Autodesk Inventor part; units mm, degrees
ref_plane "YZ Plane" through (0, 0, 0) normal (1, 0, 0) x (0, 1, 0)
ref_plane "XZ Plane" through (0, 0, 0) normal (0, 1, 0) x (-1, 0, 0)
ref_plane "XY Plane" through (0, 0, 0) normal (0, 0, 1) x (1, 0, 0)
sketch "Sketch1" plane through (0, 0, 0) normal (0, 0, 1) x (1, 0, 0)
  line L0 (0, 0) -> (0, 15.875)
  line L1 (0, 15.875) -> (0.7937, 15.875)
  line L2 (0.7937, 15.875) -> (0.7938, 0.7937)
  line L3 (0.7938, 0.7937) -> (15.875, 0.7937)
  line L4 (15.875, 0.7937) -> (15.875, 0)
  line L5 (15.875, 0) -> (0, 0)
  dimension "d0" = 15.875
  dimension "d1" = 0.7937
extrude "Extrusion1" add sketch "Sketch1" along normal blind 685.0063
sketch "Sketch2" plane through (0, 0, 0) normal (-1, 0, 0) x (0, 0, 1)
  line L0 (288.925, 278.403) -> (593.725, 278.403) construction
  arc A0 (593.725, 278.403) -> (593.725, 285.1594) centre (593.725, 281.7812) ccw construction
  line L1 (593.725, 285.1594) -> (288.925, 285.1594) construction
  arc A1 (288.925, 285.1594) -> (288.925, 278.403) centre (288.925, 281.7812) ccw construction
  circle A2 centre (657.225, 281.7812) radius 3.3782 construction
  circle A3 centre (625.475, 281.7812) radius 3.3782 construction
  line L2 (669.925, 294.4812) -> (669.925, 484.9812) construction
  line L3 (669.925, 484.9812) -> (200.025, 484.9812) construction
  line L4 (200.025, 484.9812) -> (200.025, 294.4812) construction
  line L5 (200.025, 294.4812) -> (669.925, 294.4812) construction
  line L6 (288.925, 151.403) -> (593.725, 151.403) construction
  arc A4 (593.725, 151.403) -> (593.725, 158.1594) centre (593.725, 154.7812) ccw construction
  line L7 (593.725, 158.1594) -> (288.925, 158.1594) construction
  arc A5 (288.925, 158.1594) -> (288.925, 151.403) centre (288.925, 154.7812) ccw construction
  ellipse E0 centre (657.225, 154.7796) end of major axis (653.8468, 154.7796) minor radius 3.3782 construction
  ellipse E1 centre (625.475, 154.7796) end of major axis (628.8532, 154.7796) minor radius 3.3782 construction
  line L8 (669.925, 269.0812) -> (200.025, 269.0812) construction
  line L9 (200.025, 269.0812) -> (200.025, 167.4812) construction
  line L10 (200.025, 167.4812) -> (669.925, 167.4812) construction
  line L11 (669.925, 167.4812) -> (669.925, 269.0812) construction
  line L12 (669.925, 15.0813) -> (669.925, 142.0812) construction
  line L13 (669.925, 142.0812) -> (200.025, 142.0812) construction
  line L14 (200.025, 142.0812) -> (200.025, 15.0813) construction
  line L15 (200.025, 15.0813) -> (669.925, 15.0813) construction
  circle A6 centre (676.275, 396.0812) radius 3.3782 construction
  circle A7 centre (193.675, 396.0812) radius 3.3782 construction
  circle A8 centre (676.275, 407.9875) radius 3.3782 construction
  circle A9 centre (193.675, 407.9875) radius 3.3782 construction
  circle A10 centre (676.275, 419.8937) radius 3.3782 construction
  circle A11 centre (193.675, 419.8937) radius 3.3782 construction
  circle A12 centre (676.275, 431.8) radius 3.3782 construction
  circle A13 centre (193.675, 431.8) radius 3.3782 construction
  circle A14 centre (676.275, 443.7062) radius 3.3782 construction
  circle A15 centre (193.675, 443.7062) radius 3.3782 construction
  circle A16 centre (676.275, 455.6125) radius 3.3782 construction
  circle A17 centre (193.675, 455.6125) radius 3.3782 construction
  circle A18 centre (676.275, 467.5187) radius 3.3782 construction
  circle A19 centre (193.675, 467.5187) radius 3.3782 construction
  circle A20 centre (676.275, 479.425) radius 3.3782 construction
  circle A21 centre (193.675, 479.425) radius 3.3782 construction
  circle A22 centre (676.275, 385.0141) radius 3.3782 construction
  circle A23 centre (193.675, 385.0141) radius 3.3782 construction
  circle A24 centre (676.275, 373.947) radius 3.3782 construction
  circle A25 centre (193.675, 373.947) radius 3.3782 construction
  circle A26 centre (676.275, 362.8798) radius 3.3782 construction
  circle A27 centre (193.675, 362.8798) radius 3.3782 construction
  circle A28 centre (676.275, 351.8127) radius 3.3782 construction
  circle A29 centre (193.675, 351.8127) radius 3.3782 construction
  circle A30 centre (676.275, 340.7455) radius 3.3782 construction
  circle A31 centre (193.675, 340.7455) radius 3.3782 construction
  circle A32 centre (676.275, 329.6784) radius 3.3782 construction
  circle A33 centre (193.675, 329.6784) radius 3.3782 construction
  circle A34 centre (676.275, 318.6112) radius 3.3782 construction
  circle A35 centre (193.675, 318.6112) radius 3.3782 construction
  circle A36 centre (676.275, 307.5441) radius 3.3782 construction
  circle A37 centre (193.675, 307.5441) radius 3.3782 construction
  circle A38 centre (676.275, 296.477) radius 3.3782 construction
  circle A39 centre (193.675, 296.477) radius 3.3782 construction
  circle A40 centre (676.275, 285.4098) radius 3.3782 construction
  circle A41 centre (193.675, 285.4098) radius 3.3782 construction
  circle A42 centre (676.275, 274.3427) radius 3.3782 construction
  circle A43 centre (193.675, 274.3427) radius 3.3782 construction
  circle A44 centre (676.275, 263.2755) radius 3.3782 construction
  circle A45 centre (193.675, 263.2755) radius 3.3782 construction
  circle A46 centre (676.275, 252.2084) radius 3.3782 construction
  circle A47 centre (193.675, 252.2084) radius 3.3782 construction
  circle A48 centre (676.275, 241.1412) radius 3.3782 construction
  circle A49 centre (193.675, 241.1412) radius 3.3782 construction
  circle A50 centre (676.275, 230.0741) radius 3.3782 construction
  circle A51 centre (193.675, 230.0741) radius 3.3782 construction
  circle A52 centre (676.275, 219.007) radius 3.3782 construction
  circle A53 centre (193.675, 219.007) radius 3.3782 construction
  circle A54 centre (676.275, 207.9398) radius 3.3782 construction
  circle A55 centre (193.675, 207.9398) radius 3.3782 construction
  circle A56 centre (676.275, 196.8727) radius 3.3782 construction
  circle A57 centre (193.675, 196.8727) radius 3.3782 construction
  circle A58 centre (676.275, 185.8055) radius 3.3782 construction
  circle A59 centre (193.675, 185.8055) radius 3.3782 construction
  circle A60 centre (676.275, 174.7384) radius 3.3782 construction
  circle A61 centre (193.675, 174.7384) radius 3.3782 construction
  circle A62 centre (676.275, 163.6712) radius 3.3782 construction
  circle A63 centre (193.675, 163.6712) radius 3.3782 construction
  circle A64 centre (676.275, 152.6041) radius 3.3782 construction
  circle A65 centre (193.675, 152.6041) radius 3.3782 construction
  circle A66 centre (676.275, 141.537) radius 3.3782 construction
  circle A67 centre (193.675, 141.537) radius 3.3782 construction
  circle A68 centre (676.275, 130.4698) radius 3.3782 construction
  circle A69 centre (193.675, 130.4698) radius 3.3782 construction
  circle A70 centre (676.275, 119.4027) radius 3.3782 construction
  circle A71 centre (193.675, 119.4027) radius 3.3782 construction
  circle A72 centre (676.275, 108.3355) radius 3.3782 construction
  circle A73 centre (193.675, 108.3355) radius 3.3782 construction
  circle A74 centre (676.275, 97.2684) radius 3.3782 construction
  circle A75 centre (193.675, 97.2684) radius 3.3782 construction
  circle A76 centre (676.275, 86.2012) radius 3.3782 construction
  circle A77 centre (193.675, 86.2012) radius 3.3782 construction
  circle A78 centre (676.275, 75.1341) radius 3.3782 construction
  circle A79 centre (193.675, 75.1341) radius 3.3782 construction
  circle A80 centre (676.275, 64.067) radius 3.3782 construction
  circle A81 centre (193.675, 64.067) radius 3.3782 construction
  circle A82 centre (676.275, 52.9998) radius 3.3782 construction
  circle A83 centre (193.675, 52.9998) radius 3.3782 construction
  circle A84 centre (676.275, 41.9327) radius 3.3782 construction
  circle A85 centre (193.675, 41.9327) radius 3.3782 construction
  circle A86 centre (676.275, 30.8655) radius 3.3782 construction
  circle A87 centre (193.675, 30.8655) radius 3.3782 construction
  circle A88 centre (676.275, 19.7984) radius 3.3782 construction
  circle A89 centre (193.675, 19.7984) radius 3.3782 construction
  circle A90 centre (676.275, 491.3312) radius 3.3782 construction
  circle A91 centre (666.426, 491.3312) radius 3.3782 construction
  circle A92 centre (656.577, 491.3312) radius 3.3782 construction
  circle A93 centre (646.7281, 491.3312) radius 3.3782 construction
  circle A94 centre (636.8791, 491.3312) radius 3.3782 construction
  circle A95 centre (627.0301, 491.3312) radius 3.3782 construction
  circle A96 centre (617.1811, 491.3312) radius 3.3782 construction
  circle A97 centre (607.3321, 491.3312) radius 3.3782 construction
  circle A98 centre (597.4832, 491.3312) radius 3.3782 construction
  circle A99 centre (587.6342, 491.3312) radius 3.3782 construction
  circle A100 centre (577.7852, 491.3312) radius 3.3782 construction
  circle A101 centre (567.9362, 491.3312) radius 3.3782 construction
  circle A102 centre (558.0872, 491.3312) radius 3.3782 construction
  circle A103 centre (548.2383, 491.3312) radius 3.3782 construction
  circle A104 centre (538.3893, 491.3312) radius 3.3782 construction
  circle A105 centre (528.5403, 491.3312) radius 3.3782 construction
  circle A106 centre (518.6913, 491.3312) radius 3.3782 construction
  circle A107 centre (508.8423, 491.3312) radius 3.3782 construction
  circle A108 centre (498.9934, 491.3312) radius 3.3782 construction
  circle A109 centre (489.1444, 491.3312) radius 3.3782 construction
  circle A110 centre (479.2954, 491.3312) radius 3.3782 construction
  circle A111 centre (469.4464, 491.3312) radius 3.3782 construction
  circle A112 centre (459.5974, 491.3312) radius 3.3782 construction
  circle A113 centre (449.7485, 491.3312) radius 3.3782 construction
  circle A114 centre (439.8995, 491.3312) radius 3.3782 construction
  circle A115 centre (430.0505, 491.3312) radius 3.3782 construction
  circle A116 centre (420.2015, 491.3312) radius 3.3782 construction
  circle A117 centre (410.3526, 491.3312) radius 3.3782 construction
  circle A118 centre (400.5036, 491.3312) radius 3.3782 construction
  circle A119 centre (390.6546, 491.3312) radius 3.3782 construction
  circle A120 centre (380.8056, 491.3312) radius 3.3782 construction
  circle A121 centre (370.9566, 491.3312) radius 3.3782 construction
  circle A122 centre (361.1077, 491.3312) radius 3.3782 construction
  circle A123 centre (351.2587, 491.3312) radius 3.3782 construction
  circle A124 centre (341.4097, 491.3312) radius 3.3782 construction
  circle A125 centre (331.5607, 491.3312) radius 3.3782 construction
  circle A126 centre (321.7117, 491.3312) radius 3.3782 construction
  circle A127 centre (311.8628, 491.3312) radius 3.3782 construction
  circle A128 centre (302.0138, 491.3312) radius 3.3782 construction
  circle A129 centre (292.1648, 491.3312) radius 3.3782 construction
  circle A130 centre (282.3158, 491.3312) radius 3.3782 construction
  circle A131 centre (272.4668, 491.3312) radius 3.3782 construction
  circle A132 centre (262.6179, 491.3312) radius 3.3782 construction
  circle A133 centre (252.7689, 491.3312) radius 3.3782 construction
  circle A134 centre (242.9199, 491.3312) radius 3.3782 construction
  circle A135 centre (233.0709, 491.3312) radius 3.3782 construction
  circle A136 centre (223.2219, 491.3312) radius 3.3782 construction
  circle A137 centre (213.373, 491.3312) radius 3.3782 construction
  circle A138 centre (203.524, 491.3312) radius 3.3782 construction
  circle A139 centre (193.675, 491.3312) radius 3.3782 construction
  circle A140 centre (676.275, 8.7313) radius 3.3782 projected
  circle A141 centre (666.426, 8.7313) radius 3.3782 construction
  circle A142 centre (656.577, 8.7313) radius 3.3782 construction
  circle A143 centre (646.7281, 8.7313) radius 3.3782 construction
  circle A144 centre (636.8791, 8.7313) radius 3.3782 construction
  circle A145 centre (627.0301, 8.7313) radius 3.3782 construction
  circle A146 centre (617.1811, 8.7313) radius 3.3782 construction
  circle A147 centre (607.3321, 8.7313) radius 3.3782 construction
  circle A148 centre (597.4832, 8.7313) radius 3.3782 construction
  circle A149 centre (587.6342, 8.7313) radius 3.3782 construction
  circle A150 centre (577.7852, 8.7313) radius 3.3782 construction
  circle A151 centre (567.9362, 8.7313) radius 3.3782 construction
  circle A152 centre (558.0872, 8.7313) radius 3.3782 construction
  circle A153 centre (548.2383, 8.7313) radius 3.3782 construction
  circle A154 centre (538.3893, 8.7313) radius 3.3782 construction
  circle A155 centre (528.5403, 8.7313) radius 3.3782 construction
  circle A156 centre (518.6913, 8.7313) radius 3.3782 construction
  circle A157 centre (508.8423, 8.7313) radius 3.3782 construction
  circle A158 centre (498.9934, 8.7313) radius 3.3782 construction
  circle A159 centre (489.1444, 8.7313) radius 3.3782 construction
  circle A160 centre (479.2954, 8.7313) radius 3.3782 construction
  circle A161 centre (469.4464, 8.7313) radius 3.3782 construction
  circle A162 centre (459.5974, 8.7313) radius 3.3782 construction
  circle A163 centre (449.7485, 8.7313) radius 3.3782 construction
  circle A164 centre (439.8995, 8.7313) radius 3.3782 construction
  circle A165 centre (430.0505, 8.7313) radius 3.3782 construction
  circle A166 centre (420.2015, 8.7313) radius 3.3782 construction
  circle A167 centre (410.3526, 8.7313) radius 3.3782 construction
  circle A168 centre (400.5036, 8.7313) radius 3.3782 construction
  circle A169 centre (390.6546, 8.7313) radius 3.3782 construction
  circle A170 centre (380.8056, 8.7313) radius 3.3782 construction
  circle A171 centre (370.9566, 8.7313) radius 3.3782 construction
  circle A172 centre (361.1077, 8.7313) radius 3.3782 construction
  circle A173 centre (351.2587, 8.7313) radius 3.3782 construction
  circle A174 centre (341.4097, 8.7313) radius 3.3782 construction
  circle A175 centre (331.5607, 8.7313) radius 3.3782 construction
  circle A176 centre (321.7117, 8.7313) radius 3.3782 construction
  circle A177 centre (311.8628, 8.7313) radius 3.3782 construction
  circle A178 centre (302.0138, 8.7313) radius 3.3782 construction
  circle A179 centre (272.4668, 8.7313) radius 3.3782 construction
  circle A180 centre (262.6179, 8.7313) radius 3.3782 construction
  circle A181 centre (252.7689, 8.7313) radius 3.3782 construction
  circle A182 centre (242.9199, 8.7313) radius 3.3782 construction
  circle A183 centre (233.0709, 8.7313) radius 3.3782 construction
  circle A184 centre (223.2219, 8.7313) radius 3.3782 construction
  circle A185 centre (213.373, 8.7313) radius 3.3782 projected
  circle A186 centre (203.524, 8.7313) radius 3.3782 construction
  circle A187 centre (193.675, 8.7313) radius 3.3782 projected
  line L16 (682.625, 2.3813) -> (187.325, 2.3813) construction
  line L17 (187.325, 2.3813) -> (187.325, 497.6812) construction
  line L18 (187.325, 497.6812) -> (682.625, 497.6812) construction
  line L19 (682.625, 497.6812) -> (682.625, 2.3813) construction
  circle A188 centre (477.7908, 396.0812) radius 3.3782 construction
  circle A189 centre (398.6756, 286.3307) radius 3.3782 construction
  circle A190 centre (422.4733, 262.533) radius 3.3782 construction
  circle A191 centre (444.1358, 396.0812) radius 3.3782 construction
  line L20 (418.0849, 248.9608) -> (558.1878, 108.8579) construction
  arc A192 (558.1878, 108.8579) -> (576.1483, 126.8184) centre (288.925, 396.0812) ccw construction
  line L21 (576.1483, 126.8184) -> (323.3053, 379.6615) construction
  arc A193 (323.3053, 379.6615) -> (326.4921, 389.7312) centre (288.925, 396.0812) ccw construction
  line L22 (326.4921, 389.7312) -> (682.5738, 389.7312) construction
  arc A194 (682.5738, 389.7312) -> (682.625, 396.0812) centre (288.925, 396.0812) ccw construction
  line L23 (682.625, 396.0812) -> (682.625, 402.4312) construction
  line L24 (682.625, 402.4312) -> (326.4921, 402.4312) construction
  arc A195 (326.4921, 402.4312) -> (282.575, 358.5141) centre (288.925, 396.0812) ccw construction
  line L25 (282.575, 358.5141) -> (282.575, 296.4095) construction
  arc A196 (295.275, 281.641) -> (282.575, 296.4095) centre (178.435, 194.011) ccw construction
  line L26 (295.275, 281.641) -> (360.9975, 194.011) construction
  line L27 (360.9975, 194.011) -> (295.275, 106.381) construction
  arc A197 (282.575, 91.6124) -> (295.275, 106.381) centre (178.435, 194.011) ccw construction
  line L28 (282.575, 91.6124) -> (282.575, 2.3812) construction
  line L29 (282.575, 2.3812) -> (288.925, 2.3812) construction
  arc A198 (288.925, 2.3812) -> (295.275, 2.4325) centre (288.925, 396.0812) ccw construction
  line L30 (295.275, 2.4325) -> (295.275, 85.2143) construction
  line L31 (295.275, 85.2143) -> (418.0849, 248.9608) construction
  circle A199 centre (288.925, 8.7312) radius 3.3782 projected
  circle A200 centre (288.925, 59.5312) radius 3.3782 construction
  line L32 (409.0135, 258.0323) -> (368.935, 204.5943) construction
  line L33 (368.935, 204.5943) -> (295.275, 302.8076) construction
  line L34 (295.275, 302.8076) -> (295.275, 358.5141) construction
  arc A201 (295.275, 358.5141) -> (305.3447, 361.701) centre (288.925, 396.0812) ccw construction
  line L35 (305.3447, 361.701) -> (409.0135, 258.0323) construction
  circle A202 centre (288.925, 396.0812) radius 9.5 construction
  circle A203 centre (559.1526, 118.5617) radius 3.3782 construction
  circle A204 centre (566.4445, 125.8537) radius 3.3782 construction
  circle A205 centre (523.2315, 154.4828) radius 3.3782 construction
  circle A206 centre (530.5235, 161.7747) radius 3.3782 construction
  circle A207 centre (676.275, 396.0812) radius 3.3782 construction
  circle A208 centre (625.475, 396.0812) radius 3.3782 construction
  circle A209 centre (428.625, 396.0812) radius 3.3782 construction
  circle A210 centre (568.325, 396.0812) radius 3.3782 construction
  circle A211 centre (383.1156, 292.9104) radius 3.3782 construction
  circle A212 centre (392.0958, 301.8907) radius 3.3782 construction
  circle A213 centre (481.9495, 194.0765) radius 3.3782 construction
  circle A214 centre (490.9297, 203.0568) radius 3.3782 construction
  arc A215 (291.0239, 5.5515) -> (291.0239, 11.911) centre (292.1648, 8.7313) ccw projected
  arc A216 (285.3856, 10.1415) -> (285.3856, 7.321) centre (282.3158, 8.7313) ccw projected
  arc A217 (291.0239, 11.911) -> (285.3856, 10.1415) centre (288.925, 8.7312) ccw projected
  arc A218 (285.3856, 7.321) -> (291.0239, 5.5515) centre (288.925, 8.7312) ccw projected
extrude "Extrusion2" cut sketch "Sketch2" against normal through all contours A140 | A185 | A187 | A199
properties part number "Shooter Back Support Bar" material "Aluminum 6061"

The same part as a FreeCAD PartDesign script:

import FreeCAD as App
import Part
import Sketcher
Q = App.Units.Quantity

doc = App.newDocument("Part")
body = doc.addObject("PartDesign::Body", "Body")

sketch1 = doc.addObject("Sketcher::SketchObject", "Sketch")
body.addObject(sketch1)
sketch1.AttachmentSupport = (doc.XY_Plane, [""])
sketch1.MapMode = "FlatFace"
sketch1.addGeometry([
    Part.LineSegment(App.Vector(0, 15.9, 0), App.Vector(0, 0, 0)),
    Part.LineSegment(App.Vector(0, 0, 0), App.Vector(15.9, 0, 0)),
    Part.LineSegment(App.Vector(15.9, 0, 0), App.Vector(15.9, 0.8, 0)),
    Part.LineSegment(App.Vector(15.9, 0.8, 0), App.Vector(0.8, 0.8, 0)),
    Part.LineSegment(App.Vector(0.8, 0.8, 0), App.Vector(0.8, 15.9, 0)),
    Part.LineSegment(App.Vector(0.8, 15.9, 0), App.Vector(0, 15.9, 0)),
], False)
sketch1.addConstraint([
    Sketcher.Constraint("Coincident", 0, 2, 1, 1),
    Sketcher.Constraint("Coincident", 1, 2, 2, 1),
    Sketcher.Constraint("Coincident", 2, 2, 3, 1),
    Sketcher.Constraint("Coincident", 3, 2, 4, 1),
    Sketcher.Constraint("Coincident", 4, 2, 5, 1),
    Sketcher.Constraint("Coincident", 5, 2, 0, 1),
    Sketcher.Constraint("Vertical", 0),
    Sketcher.Constraint("Horizontal", 1),
    Sketcher.Constraint("Vertical", 2),
    Sketcher.Constraint("Horizontal", 3),
    Sketcher.Constraint("Vertical", 4),
    Sketcher.Constraint("Horizontal", 5),
    Sketcher.Constraint("Coincident", 0, 2, -1, 1),
    Sketcher.Constraint("Equal", 1, 0),
    Sketcher.Constraint("Equal", 5, 2),
    Sketcher.Constraint("DistanceX", 1, 1, 1, 2, Q("0.625 in")),
    Sketcher.Constraint("DistanceX", 5, 2, 5, 1, Q("0.031248 in")),
])
pad1 = doc.addObject("PartDesign::Pad", "Pad")
body.addObject(pad1)
pad1.Profile = sketch1
pad1.Length = Q("26.968752 in")

sketch2 = doc.addObject("Sketcher::SketchObject", "Sketch001")
body.addObject(sketch2)
sketch2.AttachmentSupport = (doc.YZ_Plane, [""])
sketch2.MapMode = "FlatFace"
sketch2.addGeometry([
    Part.Circle(App.Vector(8.7, 676.3, 0), App.Vector(0, 0, 1), 3.4),
    Part.Circle(App.Vector(8.7, 213.4, 0), App.Vector(0, 0, 1), 3.4),
    Part.Circle(App.Vector(8.7, 193.7, 0), App.Vector(0, 0, 1), 3.4),
    Part.Circle(App.Vector(8.7, 288.9, 0), App.Vector(0, 0, 1), 3.4),
], False)
sketch2.addConstraint([
    Sketcher.Constraint("Equal", 0, 1),
    Sketcher.Constraint("Equal", 1, 2),
    Sketcher.Constraint("Equal", 2, 3),
    Sketcher.Constraint("Vertical", 0, 3, 1, 3),
    Sketcher.Constraint("Vertical", 1, 3, 2, 3),
    Sketcher.Constraint("Vertical", 2, 3, 3, 3),
    Sketcher.Constraint("Diameter", 0, Q("0.266 in")),
    Sketcher.Constraint("DistanceY", 2, 3, 0, 3, Q("19 in")),
    Sketcher.Constraint("DistanceY", 2, 3, 3, 3, Q("3.75 in")),
    Sketcher.Constraint("DistanceX", -1, 1, 0, 3, Q("0.343752 in")),
    Sketcher.Constraint("DistanceY", -1, 1, 0, 3, Q("26.625 in")),
    Sketcher.Constraint("DistanceY", -1, 1, 1, 3, Q("8.4005 in")),
])
pocket1 = doc.addObject("PartDesign::Pocket", "Pocket")
body.addObject(pocket1)
pocket1.Profile = sketch2
pocket1.Type = "ThroughAll"
pocket1.Reversed = True

doc.recompute()
